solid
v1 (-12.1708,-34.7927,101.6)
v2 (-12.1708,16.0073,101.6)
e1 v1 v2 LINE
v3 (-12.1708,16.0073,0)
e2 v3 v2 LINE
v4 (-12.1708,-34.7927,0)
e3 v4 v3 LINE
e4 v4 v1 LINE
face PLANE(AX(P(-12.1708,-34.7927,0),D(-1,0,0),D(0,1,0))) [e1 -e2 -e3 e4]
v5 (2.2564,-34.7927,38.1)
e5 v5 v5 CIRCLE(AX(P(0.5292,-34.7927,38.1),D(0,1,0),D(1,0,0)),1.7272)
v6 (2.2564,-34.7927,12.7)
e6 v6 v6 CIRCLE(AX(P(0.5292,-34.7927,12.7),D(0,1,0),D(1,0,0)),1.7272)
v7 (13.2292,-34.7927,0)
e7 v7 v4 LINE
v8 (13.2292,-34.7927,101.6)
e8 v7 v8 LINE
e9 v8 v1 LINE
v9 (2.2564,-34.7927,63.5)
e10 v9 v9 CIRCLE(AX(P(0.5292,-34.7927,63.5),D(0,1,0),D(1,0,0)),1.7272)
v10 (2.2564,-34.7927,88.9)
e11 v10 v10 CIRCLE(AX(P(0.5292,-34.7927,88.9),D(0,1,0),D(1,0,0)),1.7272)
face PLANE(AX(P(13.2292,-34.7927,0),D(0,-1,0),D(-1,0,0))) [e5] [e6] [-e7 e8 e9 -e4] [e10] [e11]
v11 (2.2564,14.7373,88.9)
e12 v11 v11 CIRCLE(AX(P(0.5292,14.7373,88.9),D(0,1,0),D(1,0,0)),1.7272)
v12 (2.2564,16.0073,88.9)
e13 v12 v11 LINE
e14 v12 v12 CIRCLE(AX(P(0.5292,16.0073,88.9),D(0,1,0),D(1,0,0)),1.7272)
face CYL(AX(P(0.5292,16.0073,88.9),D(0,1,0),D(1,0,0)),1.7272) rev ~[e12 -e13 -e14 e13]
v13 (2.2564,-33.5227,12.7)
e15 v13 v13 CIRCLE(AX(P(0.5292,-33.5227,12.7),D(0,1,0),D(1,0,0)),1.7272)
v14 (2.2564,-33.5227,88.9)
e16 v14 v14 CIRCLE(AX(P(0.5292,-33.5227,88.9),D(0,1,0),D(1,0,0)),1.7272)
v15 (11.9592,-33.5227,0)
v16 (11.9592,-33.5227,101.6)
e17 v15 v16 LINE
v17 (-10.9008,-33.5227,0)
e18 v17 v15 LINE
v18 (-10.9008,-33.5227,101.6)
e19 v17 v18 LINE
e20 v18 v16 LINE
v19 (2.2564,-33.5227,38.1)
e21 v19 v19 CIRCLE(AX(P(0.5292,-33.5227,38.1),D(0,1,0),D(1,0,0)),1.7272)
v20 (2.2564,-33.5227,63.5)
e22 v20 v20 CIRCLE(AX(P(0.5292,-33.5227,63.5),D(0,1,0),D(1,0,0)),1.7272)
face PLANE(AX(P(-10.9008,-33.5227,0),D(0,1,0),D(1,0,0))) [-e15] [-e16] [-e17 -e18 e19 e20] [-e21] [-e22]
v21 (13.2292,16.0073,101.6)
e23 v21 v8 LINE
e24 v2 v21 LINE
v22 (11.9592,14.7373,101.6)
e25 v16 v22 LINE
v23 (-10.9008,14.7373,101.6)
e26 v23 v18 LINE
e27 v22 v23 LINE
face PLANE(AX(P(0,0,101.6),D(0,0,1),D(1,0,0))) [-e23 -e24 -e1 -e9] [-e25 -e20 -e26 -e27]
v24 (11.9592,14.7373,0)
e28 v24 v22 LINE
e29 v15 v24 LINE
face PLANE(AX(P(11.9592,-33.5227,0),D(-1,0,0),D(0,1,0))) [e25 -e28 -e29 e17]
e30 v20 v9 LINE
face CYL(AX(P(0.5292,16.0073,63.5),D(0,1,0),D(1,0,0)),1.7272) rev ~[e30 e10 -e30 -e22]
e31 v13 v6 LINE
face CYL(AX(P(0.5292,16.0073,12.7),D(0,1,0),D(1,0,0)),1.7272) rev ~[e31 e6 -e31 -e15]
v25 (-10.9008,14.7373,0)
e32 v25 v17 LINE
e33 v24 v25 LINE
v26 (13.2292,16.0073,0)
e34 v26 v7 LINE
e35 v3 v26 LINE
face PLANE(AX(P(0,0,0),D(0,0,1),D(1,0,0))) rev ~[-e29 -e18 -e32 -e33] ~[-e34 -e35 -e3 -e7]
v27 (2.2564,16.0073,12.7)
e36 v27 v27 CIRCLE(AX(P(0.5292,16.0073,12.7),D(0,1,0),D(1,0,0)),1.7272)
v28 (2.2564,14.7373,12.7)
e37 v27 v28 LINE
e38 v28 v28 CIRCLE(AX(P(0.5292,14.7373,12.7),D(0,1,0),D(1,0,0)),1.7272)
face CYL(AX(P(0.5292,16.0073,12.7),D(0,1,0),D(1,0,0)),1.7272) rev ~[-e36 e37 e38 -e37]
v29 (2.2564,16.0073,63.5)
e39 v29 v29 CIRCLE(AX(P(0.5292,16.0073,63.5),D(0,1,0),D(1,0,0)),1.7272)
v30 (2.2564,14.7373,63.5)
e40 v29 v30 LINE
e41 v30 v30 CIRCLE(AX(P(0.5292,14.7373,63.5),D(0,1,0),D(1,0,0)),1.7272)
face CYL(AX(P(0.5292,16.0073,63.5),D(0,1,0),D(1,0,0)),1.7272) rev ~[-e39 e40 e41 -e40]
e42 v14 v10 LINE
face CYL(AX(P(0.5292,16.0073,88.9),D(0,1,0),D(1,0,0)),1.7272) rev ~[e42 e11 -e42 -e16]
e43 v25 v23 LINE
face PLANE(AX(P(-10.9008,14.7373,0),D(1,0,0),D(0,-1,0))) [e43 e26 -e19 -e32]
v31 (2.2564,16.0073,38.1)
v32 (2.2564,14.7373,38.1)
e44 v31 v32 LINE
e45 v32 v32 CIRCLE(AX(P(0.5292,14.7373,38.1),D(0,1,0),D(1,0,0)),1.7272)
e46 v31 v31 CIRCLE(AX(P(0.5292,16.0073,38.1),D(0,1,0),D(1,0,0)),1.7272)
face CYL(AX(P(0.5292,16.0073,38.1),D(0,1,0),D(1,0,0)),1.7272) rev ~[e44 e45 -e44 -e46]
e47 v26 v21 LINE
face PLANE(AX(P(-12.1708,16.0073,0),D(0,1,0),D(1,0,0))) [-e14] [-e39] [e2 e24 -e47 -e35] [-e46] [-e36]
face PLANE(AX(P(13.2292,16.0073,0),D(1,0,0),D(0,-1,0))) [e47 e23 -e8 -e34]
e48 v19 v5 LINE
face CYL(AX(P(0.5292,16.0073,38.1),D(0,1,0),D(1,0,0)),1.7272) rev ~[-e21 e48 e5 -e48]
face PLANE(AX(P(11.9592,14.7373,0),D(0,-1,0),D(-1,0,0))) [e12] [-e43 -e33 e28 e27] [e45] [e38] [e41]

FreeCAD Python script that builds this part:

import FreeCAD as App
import Part
import Sketcher

V = App.Vector
Q = App.Units.Quantity


def add_polygon(sketch, points):
    """Adds a closed chain of lines whose ends are joined by coincident constraints."""
    first, n = sketch.GeometryCount, len(points)
    for a, b in zip(points, points[1:] + points[:1]):
        sketch.addGeometry(Part.LineSegment(App.Vector(*a, 0), App.Vector(*b, 0)), False)
    for i in range(n):
        sketch.addConstraint(Sketcher.Constraint("Coincident", first + i, 2, first + (i + 1) % n, 1))

doc = App.newDocument("Part")
body = doc.addObject("PartDesign::Body", "Body")

sketch1 = doc.addObject("Sketcher::SketchObject", "Sketch")
body.addObject(sketch1)
sketch1.AttachmentSupport = (doc.XY_Plane, [""])
sketch1.MapMode = "FlatFace"
add_polygon(sketch1, [(13, 16), (-12, 16), (-12, -35), (13, -35)])
add_polygon(sketch1, [(-11, 15), (12, 15), (12, -34), (-11, -34)])
sketch1.addConstraint([
    Sketcher.Constraint("Horizontal", 0),
    Sketcher.Constraint("Vertical", 1),
    Sketcher.Constraint("Horizontal", 2),
    Sketcher.Constraint("Vertical", 3),
    Sketcher.Constraint("Horizontal", 4),
    Sketcher.Constraint("Vertical", 5),
    Sketcher.Constraint("Horizontal", 6),
    Sketcher.Constraint("Vertical", 7),
    Sketcher.Constraint("DistanceX", 0, 2, 0, 1, Q("1 in")),
    Sketcher.Constraint("DistanceY", 1, 2, 1, 1, Q("2 in")),
    Sketcher.Constraint("DistanceX", 4, 2, 3, 2, Q("0.05 in")),
    Sketcher.Constraint("DistanceY", 4, 2, 3, 2, Q("0.05 in")),
    Sketcher.Constraint("DistanceY", 2, 2, 5, 2, Q("0.05 in")),
    Sketcher.Constraint("DistanceX", 1, 2, 6, 2, Q("0.05 in")),
    Sketcher.Constraint("DistanceY", -1, 1, 0, 2, Q("0.6302 in")),
    Sketcher.Constraint("DistanceX", 0, 2, -1, 1, 12.1708),
])
pad1 = doc.addObject("PartDesign::Pad", "Pad")
body.addObject(pad1)
pad1.Profile = sketch1
pad1.Length = Q("4 in")

sketch2 = doc.addObject("Sketcher::SketchObject", "Sketch001")
body.addObject(sketch2)
sketch2.AttachmentSupport = (doc.XZ_Plane, [""])
sketch2.MapMode = "FlatFace"
sketch2.AttachmentOffset = App.Placement(V(0, 0, -0.6302087 * 25.4), App.Rotation())
sketch2.addGeometry(Part.Circle(V(0.5, 12.7, 0), V(0, 0, 1), 1.7), False)
sketch2.addConstraint([
    Sketcher.Constraint("Diameter", 0, Q("0.136 in")),
    Sketcher.Constraint("DistanceY", -1, 1, 0, 3, Q("0.5 in")),
    Sketcher.Constraint("DistanceX", -1, 1, 0, 3, 0.5292),
])
pocket1 = doc.addObject("PartDesign::Pocket", "Pocket")
body.addObject(pocket1)
pocket1.Profile = sketch2
pocket1.Type = "ThroughAll"
pocket1.Reversed = True
doc.recompute()

linearpattern = doc.addObject("PartDesign::LinearPattern", "LinearPattern")
body.addObject(linearpattern)
linearpattern.Originals = [pocket1]
linearpattern.Direction = (doc.Z_Axis, [""])
linearpattern.Mode = "offset"
linearpattern.Offset = Q("1 in")
linearpattern.Occurrences = 10
body.Tip = linearpattern

doc.recompute()
